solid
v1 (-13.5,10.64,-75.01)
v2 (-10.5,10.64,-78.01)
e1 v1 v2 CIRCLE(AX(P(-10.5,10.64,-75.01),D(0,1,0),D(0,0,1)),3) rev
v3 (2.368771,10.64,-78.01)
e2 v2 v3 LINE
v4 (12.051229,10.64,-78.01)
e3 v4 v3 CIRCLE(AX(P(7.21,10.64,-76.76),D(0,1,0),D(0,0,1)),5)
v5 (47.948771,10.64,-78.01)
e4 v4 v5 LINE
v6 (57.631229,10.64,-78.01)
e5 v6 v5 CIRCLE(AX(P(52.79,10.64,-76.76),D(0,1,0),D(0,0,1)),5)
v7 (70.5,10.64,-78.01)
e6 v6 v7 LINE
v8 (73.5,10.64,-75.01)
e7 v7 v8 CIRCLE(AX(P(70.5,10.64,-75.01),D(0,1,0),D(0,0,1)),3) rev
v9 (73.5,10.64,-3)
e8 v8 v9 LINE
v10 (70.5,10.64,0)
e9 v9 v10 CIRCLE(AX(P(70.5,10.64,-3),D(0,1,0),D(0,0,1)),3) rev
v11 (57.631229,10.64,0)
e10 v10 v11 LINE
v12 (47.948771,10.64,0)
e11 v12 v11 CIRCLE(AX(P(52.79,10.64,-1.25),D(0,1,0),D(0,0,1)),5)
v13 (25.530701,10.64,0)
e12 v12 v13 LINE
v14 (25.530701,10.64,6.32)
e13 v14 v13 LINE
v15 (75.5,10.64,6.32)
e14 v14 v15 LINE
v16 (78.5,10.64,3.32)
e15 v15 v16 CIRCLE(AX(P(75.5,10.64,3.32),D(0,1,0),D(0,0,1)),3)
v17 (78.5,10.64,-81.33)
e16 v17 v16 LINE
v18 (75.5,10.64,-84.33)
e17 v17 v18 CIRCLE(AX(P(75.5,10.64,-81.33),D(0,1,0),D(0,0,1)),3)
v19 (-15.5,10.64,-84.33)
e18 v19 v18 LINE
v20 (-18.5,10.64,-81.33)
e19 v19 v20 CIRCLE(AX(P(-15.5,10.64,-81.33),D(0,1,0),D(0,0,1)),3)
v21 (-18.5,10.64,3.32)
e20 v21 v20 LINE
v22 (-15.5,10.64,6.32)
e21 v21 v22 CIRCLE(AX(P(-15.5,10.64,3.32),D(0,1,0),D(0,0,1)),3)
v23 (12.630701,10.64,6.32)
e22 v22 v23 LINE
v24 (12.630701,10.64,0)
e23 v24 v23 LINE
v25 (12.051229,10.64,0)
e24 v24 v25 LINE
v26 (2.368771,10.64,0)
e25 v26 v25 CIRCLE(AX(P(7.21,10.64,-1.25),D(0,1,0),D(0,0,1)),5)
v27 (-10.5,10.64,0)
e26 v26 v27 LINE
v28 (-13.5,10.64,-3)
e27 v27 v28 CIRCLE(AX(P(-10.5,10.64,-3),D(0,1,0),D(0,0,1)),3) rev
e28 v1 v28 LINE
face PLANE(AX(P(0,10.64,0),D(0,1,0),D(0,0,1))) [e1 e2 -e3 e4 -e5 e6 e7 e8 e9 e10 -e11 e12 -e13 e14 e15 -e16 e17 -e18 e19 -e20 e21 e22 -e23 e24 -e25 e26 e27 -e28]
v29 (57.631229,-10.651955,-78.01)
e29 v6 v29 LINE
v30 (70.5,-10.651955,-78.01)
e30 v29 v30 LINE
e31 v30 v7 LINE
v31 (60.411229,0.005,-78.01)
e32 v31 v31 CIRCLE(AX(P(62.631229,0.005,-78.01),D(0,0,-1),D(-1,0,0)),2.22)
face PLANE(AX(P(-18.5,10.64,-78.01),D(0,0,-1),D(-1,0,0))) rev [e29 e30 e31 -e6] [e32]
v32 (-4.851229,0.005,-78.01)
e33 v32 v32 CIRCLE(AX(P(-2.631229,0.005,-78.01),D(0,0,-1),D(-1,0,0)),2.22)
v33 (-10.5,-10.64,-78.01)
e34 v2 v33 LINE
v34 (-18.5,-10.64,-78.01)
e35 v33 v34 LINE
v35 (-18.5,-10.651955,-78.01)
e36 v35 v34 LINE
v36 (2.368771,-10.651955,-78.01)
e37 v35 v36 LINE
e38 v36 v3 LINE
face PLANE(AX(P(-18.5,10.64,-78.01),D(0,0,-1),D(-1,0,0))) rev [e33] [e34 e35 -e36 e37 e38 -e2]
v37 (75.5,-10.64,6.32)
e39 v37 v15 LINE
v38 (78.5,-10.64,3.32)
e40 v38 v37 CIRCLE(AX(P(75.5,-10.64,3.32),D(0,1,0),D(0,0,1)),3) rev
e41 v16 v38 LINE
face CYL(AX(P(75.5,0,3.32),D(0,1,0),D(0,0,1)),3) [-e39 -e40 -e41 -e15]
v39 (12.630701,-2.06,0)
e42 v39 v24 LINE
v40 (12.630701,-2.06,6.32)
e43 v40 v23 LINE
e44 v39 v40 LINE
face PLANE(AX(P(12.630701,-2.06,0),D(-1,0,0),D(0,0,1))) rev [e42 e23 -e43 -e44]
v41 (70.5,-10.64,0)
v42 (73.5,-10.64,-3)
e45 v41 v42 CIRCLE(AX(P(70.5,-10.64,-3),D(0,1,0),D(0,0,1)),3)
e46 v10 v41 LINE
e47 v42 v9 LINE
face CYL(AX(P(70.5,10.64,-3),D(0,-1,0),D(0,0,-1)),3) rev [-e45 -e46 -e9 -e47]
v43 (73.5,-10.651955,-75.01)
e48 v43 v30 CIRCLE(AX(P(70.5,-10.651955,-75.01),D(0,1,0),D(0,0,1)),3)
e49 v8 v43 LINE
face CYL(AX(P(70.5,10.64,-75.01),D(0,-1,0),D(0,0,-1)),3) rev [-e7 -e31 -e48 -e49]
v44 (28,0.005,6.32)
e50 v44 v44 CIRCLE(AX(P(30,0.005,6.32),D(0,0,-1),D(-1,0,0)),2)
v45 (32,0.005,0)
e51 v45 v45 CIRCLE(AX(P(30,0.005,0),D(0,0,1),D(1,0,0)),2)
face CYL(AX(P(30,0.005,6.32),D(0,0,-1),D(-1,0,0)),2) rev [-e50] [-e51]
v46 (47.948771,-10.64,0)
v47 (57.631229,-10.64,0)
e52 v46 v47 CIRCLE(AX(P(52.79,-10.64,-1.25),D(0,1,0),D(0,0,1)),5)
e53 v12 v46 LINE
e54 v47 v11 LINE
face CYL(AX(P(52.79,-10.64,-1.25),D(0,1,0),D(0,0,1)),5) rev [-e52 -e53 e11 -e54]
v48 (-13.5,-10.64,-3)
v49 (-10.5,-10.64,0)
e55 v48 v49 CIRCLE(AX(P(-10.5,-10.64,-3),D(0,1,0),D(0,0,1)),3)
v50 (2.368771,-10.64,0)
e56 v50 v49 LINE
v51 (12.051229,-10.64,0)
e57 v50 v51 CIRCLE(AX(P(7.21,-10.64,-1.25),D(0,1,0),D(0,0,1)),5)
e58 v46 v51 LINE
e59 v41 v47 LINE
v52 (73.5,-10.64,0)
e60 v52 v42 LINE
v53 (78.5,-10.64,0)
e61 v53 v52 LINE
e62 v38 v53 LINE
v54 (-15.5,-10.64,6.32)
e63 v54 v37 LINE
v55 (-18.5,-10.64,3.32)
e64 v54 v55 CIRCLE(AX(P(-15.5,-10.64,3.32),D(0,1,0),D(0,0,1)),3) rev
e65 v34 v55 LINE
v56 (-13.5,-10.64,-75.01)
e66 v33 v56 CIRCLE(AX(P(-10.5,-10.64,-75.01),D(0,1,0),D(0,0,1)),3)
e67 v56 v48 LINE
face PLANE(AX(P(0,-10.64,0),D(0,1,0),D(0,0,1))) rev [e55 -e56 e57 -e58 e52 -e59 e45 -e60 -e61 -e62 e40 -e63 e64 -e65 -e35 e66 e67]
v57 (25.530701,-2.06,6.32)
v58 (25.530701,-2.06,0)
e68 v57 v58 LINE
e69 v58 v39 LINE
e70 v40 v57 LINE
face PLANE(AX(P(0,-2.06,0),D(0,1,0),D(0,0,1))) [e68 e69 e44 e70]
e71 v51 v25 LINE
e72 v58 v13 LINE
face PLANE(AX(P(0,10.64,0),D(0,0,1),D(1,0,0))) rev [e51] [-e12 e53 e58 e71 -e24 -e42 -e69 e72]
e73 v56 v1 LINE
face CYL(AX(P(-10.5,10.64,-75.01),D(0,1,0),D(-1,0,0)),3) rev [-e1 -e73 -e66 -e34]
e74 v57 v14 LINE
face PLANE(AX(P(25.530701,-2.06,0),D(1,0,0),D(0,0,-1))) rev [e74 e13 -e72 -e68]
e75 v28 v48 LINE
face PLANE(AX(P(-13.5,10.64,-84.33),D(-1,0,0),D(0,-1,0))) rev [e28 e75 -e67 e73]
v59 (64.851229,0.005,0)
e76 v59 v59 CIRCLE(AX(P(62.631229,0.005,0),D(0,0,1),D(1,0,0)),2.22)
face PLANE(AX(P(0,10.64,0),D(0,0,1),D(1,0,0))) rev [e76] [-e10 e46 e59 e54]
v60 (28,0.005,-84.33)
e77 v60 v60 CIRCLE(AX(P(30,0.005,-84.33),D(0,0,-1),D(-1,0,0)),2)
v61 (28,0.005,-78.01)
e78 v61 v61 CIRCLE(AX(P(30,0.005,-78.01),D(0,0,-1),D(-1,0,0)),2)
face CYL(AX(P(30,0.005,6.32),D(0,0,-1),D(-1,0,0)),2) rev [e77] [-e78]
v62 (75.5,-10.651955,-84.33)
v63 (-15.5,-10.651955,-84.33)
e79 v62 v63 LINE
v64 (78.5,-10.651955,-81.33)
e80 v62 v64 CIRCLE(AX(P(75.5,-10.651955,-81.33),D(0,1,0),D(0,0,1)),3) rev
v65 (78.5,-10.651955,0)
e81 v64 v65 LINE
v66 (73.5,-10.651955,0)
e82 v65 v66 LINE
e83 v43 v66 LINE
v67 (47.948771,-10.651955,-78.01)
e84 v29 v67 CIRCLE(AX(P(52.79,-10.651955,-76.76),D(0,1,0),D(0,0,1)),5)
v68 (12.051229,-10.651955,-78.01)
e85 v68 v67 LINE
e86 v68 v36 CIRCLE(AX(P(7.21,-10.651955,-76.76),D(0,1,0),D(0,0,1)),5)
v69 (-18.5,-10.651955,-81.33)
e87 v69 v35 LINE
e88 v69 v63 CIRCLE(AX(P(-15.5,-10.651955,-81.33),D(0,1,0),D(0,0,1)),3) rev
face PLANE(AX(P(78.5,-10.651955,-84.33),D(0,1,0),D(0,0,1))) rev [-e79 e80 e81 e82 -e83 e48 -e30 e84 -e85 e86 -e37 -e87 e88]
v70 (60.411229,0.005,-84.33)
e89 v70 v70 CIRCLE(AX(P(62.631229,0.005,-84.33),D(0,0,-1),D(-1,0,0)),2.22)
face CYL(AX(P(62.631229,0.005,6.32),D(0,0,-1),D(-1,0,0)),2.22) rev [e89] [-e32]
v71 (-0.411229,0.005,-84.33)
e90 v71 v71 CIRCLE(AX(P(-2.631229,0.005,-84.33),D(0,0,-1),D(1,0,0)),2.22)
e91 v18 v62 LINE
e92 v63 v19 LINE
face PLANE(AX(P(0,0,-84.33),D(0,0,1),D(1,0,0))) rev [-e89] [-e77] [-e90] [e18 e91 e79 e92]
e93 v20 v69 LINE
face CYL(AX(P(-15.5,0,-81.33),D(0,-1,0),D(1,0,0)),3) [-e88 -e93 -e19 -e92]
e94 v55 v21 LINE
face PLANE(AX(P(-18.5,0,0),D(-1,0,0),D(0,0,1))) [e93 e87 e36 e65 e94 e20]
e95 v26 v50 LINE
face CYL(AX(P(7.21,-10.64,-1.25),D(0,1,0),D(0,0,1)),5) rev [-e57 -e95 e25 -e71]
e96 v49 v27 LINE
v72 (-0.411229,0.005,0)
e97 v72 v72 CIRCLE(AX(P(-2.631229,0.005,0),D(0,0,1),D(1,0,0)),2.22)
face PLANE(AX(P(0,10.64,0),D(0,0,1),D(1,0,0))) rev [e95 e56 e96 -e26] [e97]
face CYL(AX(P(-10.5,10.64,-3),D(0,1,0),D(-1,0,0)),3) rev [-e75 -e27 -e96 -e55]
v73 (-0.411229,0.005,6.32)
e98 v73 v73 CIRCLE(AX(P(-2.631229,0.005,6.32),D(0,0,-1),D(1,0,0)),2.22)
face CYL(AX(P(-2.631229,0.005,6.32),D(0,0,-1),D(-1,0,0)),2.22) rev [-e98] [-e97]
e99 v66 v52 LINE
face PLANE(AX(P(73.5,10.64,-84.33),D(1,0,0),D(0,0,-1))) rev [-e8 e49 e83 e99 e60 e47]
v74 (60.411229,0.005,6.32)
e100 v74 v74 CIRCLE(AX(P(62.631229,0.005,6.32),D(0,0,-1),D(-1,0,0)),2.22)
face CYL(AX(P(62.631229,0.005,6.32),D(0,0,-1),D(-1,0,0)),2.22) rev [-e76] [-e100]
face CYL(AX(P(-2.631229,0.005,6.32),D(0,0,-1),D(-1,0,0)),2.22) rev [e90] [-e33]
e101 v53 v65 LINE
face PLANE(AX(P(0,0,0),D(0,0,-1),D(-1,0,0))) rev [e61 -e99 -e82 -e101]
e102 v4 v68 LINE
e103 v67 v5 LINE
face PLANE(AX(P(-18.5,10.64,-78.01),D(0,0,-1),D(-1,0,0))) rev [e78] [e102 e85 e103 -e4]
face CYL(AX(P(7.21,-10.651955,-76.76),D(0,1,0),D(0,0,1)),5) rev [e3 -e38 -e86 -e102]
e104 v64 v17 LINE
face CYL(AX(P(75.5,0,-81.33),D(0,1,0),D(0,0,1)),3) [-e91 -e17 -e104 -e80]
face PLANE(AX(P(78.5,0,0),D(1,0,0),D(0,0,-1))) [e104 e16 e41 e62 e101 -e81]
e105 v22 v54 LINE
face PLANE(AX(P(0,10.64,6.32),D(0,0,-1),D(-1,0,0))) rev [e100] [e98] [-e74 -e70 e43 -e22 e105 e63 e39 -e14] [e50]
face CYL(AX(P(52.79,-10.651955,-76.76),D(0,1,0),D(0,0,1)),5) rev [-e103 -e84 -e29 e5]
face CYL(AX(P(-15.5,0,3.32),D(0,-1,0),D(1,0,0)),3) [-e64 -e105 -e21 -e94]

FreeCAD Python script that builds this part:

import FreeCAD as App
import Part
import Sketcher

V = App.Vector
Q = App.Units.Quantity


def edges_at(feature, points):
    """Names of the edges that pass closest to the given points."""
    edges = feature.Shape.Edges
    near = lambda p: min(range(len(edges)), key=lambda i: edges[i].distToShape(Part.Vertex(*p))[0])
    return sorted({f"Edge{near(p) + 1}" for p in points})

doc = App.newDocument("Part")
body = doc.addObject("PartDesign::Body", "Body")

# Sketch on XZ plane
sketch1 = body.newObject("Sketcher::SketchObject", "Sketch")
sketch1.AttachmentSupport = (doc.getObject("XZ_Plane"), [""])
sketch1.MapMode = "FlatFace"
sketch1.addGeometry([
    Part.LineSegment(V(0, 0, 0), V(0, 6, 0)),
    Part.LineSegment(V(0, 6, 0), V(60, 6, 0)),
    Part.LineSegment(V(60, 6, 0), V(60, 0, 0)),
    Part.LineSegment(V(60, 0, 0), V(0, 0, 0)),
], False)
sketch1.addConstraint([
    Sketcher.Constraint("Coincident", 0, 2, 1, 1),
    Sketcher.Constraint("Coincident", 1, 2, 2, 1),
    Sketcher.Constraint("Coincident", 2, 2, 3, 1),
    Sketcher.Constraint("Coincident", 3, 2, 0, 1),
    Sketcher.Constraint("Vertical", 0),
    Sketcher.Constraint("Horizontal", 1),
    Sketcher.Constraint("Vertical", 2),
    Sketcher.Constraint("Horizontal", 3),
    Sketcher.Constraint("Coincident", 3, 2, -1, 1),
    Sketcher.Constraint("DistanceX", 1, 1, 1, 2, Q("60 mm")),
    Sketcher.Constraint("DistanceY", 0, 1, 0, 2, Q("6.32 mm")),
])
pad1 = body.newObject("PartDesign::Pad", "Pad")
pad1.Profile = sketch1
pad1.Length = 21.28
pad1.Midplane = True

# Sketch on XZ plane
sketch2 = body.newObject("Sketcher::SketchObject", "Sketch001")
sketch2.AttachmentSupport = (doc.getObject("XZ_Plane"), [""])
sketch2.MapMode = "FlatFace"
sketch2.AttachmentOffset = App.Placement(V(0, 0, -10.64), App.Rotation())
sketch2.addGeometry([
    Part.Circle(V(7, -1, 0), V(0, 0, 1), 5),
    Part.Circle(V(53, -1, 0), V(0, 0, 1), 5),
], False)
sketch2.addConstraint([
    Sketcher.Constraint("Equal", 0, 1),
    Sketcher.Constraint("Horizontal", 0, 3, 1, 3),
    Sketcher.Constraint("Diameter", 0, Q("10 mm")),
    Sketcher.Constraint("DistanceX", -1, 1, 0, 3, Q("7.21 mm")),
    Sketcher.Constraint("DistanceY", 0, 3, -1, 1, Q("1.25 mm")),
    Sketcher.Constraint("DistanceX", -1, 1, 1, 3, Q("52.79 mm")),
])
pocket1 = body.newObject("PartDesign::Pocket", "Pocket")
pocket1.Profile = sketch2
pocket1.Type = "ThroughAll"
pocket1.Reversed = True

# Sketch on YZ plane
sketch3 = body.newObject("Sketcher::SketchObject", "Sketch002")
sketch3.AttachmentSupport = (doc.getObject("YZ_Plane"), [""])
sketch3.MapMode = "FlatFace"
sketch3.AttachmentOffset = App.Placement(V(0, 0, 60), App.Rotation())
sketch3.addGeometry([
    Part.LineSegment(V(11, 6, 0), V(-11, 6, 0)),
    Part.LineSegment(V(-11, 6, 0), V(-11, 0, 0)),
    Part.LineSegment(V(-11, 0, 0), V(11, 0, 0)),
    Part.LineSegment(V(11, 0, 0), V(11, 6, 0)),
], False)
sketch3.addConstraint([
    Sketcher.Constraint("Coincident", 0, 2, 1, 1),
    Sketcher.Constraint("Coincident", 1, 2, 2, 1),
    Sketcher.Constraint("Coincident", 2, 2, 3, 1),
    Sketcher.Constraint("Coincident", 3, 2, 0, 1),
    Sketcher.Constraint("Horizontal", 0),
    Sketcher.Constraint("Vertical", 1),
    Sketcher.Constraint("Horizontal", 2),
    Sketcher.Constraint("Vertical", 3),
    Sketcher.Constraint("Symmetric", 1, 2, 2, 2, -1, 1),
    Sketcher.Constraint("DistanceX", 0, 2, 0, 1, Q("21.28 mm")),
    Sketcher.Constraint("DistanceY", 1, 2, 1, 1, Q("6.32 mm")),
])
pad2 = body.newObject("PartDesign::Pad", "Pad001")
pad2.Profile = sketch3
pad2.Length = 18.5

# Sketch on YZ plane
sketch4 = body.newObject("Sketcher::SketchObject", "Sketch003")
sketch4.AttachmentSupport = (doc.getObject("YZ_Plane"), [""])
sketch4.MapMode = "FlatFace"
sketch4.addGeometry([
    Part.LineSegment(V(11, 0, 0), V(-11, 0, 0)),
    Part.LineSegment(V(-11, 0, 0), V(-11, 6, 0)),
    Part.LineSegment(V(-11, 6, 0), V(11, 6, 0)),
    Part.LineSegment(V(11, 6, 0), V(11, 0, 0)),
], False)
sketch4.addConstraint([
    Sketcher.Constraint("Coincident", 0, 2, 1, 1),
    Sketcher.Constraint("Coincident", 1, 2, 2, 1),
    Sketcher.Constraint("Coincident", 2, 2, 3, 1),
    Sketcher.Constraint("Coincident", 3, 2, 0, 1),
    Sketcher.Constraint("Horizontal", 0),
    Sketcher.Constraint("Vertical", 1),
    Sketcher.Constraint("Horizontal", 2),
    Sketcher.Constraint("Vertical", 3),
    Sketcher.Constraint("Symmetric", 0, 2, 3, 2, -1, 1),
    Sketcher.Constraint("DistanceX", 0, 2, 0, 1, Q("21.28 mm")),
    Sketcher.Constraint("DistanceY", 1, 1, 1, 2, Q("6.32 mm")),
])
pad3 = body.newObject("PartDesign::Pad", "Pad002")
pad3.Profile = sketch4
pad3.Length = 18.5
pad3.Reversed = True

# Sketch on XY plane
sketch5 = body.newObject("Sketcher::SketchObject", "Sketch004")
sketch5.AttachmentSupport = (doc.getObject("XY_Plane"), [""])
sketch5.MapMode = "FlatFace"
sketch5.addGeometry([
    Part.LineSegment(V(-14, 11, 0), V(-14, -11, 0)),
    Part.LineSegment(V(-14, -11, 0), V(-18, -11, 0)),
    Part.LineSegment(V(-18, -11, 0), V(-18, 11, 0)),
    Part.LineSegment(V(-18, 11, 0), V(-14, 11, 0)),
], False)
sketch5.addConstraint([
    Sketcher.Constraint("Coincident", 0, 2, 1, 1),
    Sketcher.Constraint("Coincident", 1, 2, 2, 1),
    Sketcher.Constraint("Coincident", 2, 2, 3, 1),
    Sketcher.Constraint("Coincident", 3, 2, 0, 1),
    Sketcher.Constraint("Vertical", 0),
    Sketcher.Constraint("Horizontal", 1),
    Sketcher.Constraint("Vertical", 2),
    Sketcher.Constraint("Horizontal", 3),
    Sketcher.Constraint("DistanceX", 1, 2, 1, 1, Q("5 mm")),
    Sketcher.Constraint("DistanceY", 0, 2, 0, 1, Q("21.28 mm")),
    Sketcher.Constraint("DistanceX", 0, 2, -1, 1, Q("13.5 mm")),
    Sketcher.Constraint("DistanceY", 0, 2, -1, 1, Q("10.64 mm")),
])
pad4 = body.newObject("PartDesign::Pad", "Pad003")
pad4.Profile = sketch5
pad4.Length = 84.33
pad4.Reversed = True

# Sketch on XY plane
sketch6 = body.newObject("Sketcher::SketchObject", "Sketch005")
sketch6.AttachmentSupport = (doc.getObject("XY_Plane"), [""])
sketch6.MapMode = "FlatFace"
sketch6.addGeometry([
    Part.LineSegment(V(78, 11, 0), V(78, -11, 0)),
    Part.LineSegment(V(78, -11, 0), V(74, -11, 0)),
    Part.LineSegment(V(74, -11, 0), V(74, 11, 0)),
    Part.LineSegment(V(74, 11, 0), V(78, 11, 0)),
], False)
sketch6.addConstraint([
    Sketcher.Constraint("Coincident", 0, 2, 1, 1),
    Sketcher.Constraint("Coincident", 1, 2, 2, 1),
    Sketcher.Constraint("Coincident", 2, 2, 3, 1),
    Sketcher.Constraint("Coincident", 3, 2, 0, 1),
    Sketcher.Constraint("Vertical", 0),
    Sketcher.Constraint("Horizontal", 1),
    Sketcher.Constraint("Vertical", 2),
    Sketcher.Constraint("Horizontal", 3),
    Sketcher.Constraint("DistanceX", 1, 2, 1, 1, Q("5 mm")),
    Sketcher.Constraint("DistanceX", -1, 1, 0, 2, Q("78.5 mm")),
    Sketcher.Constraint("DistanceY", -1, 1, 2, 2, Q("10.64 mm")),
    Sketcher.Constraint("DistanceY", 0, 2, 0, 1, Q("21.291955 mm")),
])
pad5 = body.newObject("PartDesign::Pad", "Pad004")
pad5.Profile = sketch6
pad5.Length = 84.33
pad5.Reversed = True

# Sketch on YZ plane
sketch7 = body.newObject("Sketcher::SketchObject", "Sketch006")
sketch7.AttachmentSupport = (doc.getObject("YZ_Plane"), [""])
sketch7.MapMode = "FlatFace"
sketch7.AttachmentOffset = App.Placement(V(0, 0, 73.5), App.Rotation())
sketch7.addGeometry([
    Part.LineSegment(V(11, -84, 0), V(-11, -84, 0)),
    Part.LineSegment(V(-11, -84, 0), V(-11, -78, 0)),
    Part.LineSegment(V(-11, -78, 0), V(11, -78, 0)),
    Part.LineSegment(V(11, -78, 0), V(11, -84, 0)),
], False)
sketch7.addConstraint([
    Sketcher.Constraint("Coincident", 0, 2, 1, 1),
    Sketcher.Constraint("Coincident", 1, 2, 2, 1),
    Sketcher.Constraint("Coincident", 2, 2, 3, 1),
    Sketcher.Constraint("Coincident", 3, 2, 0, 1),
    Sketcher.Constraint("Horizontal", 0),
    Sketcher.Constraint("Vertical", 1),
    Sketcher.Constraint("Horizontal", 2),
    Sketcher.Constraint("Vertical", 3),
    Sketcher.Constraint("DistanceY", 1, 1, 1, 2, Q("6.32 mm")),
    Sketcher.Constraint("DistanceY", 0, 2, -1, 1, Q("84.33 mm")),
    Sketcher.Constraint("DistanceX", -1, 1, 2, 2, Q("10.64 mm")),
    Sketcher.Constraint("DistanceX", 0, 2, 0, 1, Q("21.291955 mm")),
])
pad6 = body.newObject("PartDesign::Pad", "Pad005")
pad6.Profile = sketch7
pad6.Type = "UpToLast"
pad6.Reversed = True

# Sketch on XZ plane
sketch8 = body.newObject("Sketcher::SketchObject", "Sketch007")
sketch8.AttachmentSupport = (doc.getObject("XZ_Plane"), [""])
sketch8.MapMode = "FlatFace"
sketch8.AttachmentOffset = App.Placement(V(0, 0, -10.64), App.Rotation())
sketch8.addGeometry([
    Part.Circle(V(7, -77, 0), V(0, 0, 1), 5),
    Part.Circle(V(53, -77, 0), V(0, 0, 1), 5),
], False)
sketch8.addConstraint([
    Sketcher.Constraint("Equal", 0, 1),
    Sketcher.Constraint("Horizontal", 0, 3, 1, 3),
    Sketcher.Constraint("Diameter", 0, Q("10 mm")),
    Sketcher.Constraint("DistanceX", -1, 1, 0, 3, Q("7.21 mm")),
    Sketcher.Constraint("DistanceY", 0, 3, -1, 1, Q("76.76 mm")),
    Sketcher.Constraint("DistanceX", -1, 1, 1, 3, Q("52.79 mm")),
])
pocket2 = body.newObject("PartDesign::Pocket", "Pocket001")
pocket2.Profile = sketch8
pocket2.Type = "ThroughAll"
pocket2.Reversed = True

# Sketch on XY plane
sketch9 = body.newObject("Sketcher::SketchObject", "Sketch008")
sketch9.AttachmentSupport = (doc.getObject("XY_Plane"), [""])
sketch9.MapMode = "FlatFace"
sketch9.AttachmentOffset = App.Placement(V(0, 0, -84.33), App.Rotation())
sketch9.addGeometry([
    Part.Circle(V(62.6, 0, 0), V(0, 0, 1), 2.2),
    Part.Circle(V(-2.6, 0, 0), V(0, 0, 1), 2.2),
], False)
sketch9.addConstraint([
    Sketcher.Constraint("Equal", 0, 1),
    Sketcher.Constraint("Horizontal", 0, 3, 1, 3),
    Sketcher.Constraint("Diameter", 0, Q("4.44 mm")),
    Sketcher.Constraint("DistanceY", -1, 1, 0, 3, Q("0.005 mm")),
    Sketcher.Constraint("DistanceX", -1, 1, 0, 3, Q("62.631229 mm")),
    Sketcher.Constraint("DistanceX", 1, 3, -1, 1, Q("2.631229 mm")),
])
pocket3 = body.newObject("PartDesign::Pocket", "Pocket002")
pocket3.Profile = sketch9
pocket3.Type = "ThroughAll"
pocket3.Reversed = True
doc.recompute()

fillet = body.newObject("PartDesign::Fillet", "Fillet")
fillet.Base = (pocket3, edges_at(pocket3, [
    (78.5, 0, 6.32),
    (-18.5, 0, 6.32),
    (-13.5, 0, 0),
    (-18.5, -0.006, -84.33),
    (73.5, 0, 0),
    (78.5, -0.006, -84.33),
    (-13.5, 0, -78.01),
    (73.5, -0.006, -78.01),
]))
fillet.Radius = 3

# Sketch on XY plane
sketch10 = body.newObject("Sketcher::SketchObject", "Sketch009")
sketch10.AttachmentSupport = (doc.getObject("XY_Plane"), [""])
sketch10.MapMode = "FlatFace"
sketch10.AttachmentOffset = App.Placement(V(0, 0, -84.33), App.Rotation())
sketch10.addGeometry(Part.Circle(V(30, 0, 0), V(0, 0, 1), 2), False)
sketch10.addConstraint([
    Sketcher.Constraint("Diameter", 0, Q("4 mm")),
    Sketcher.Constraint("DistanceX", -1, 1, 0, 3, Q("30 mm")),
    Sketcher.Constraint("DistanceY", -1, 1, 0, 3, Q("0.005 mm")),
])
pocket4 = body.newObject("PartDesign::Pocket", "Pocket003")
pocket4.Profile = sketch10
pocket4.Type = "ThroughAll"
pocket4.Reversed = True

# Sketch on XZ plane
sketch11 = body.newObject("Sketcher::SketchObject", "Sketch010")
sketch11.AttachmentSupport = (doc.getObject("XZ_Plane"), [""])
sketch11.MapMode = "FlatFace"
sketch11.AttachmentOffset = App.Placement(V(0, 0, -10.64), App.Rotation())
sketch11.addGeometry([
    Part.LineSegment(V(13, 0, 0), V(13, 6, 0)),
    Part.LineSegment(V(13, 6, 0), V(26, 6, 0)),
    Part.LineSegment(V(26, 6, 0), V(26, 0, 0)),
    Part.LineSegment(V(26, 0, 0), V(13, 0, 0)),
], False)
sketch11.addConstraint([
    Sketcher.Constraint("Coincident", 0, 2, 1, 1),
    Sketcher.Constraint("Coincident", 1, 2, 2, 1),
    Sketcher.Constraint("Coincident", 2, 2, 3, 1),
    Sketcher.Constraint("Coincident", 3, 2, 0, 1),
    Sketcher.Constraint("Vertical", 0),
    Sketcher.Constraint("Horizontal", 1),
    Sketcher.Constraint("Vertical", 2),
    Sketcher.Constraint("Horizontal", 3),
    Sketcher.Constraint("PointOnObject", 2, 2, -1),
    Sketcher.Constraint("DistanceX", 1, 1, 1, 2, Q("12.9 mm")),
    Sketcher.Constraint("DistanceY", 0, 1, 0, 2, Q("6.32 mm")),
    Sketcher.Constraint("DistanceX", -1, 1, 0, 2, Q("12.630701 mm")),
])
pocket5 = body.newObject("PartDesign::Pocket", "Pocket004")
pocket5.Profile = sketch11
pocket5.Length = 25.4
pocket5.Midplane = True

doc.recompute()
